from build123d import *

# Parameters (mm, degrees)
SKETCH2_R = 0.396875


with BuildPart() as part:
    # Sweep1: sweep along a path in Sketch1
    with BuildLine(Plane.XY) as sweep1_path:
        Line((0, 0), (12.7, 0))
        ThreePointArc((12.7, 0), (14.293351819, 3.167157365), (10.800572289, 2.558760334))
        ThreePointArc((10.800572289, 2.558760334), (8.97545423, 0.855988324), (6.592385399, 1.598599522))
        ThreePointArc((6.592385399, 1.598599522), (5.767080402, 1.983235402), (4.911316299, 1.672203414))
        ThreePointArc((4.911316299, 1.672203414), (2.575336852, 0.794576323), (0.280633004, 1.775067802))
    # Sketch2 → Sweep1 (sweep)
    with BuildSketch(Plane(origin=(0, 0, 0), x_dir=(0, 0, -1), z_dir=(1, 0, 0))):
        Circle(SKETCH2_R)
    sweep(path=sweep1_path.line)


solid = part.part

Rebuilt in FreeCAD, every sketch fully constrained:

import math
import FreeCAD as App
import Part
import Sketcher

V = App.Vector
Q = App.Units.Quantity

doc = App.newDocument("Part")
body = doc.addObject("PartDesign::Body", "Body")

# Sketch on YZ plane
sketch1 = body.newObject("Sketcher::SketchObject", "Sketch")
sketch1.AttachmentSupport = (doc.getObject("YZ_Plane"), [""])
sketch1.MapMode = "FlatFace"
sketch1.addGeometry(Part.Circle(V(0, 0, 0), V(0, 0, 1), 0.4), False)
sketch1.addConstraint(Sketcher.Constraint("Coincident", 0, 3, -1, 1))
sketch1.addConstraint(Sketcher.Constraint("Diameter", 0, Q("0.03125 in")))

# Sketch on XY plane
sketch2 = body.newObject("Sketcher::SketchObject", "Sketch001")
sketch2.AttachmentSupport = (doc.getObject("XY_Plane"), [""])
sketch2.MapMode = "FlatFace"
sketch2.addGeometry(Part.LineSegment(V(0, 0, 0), V(12.7, 0, 0)), False)
sketch2.addGeometry(Part.ArcOfCircle(Part.Circle(V(12.7, 2, 0), V(0, 0, 1), 2), math.radians(-90), math.radians(163)), False)
sketch2.addGeometry(Part.ArcOfCircle(Part.Circle(V(8.4, 3.3, 0), V(0, 0, 1), 2.5), math.radians(-137), math.radians(-17)), False)
sketch2.addGeometry(Part.ArcOfCircle(Part.Circle(V(5.7, 0.8, 0), V(0, 0, 1), 1.2), math.radians(43), math.radians(132)), False)
sketch2.addGeometry(Part.ArcOfCircle(Part.Circle(V(2.6, 4.1, 0), V(0, 0, 1), 3.4), math.radians(-135), math.radians(-48)), False)
sketch2.addConstraint(Sketcher.Constraint("Tangent", 0, 2, 1, 1))
sketch2.addConstraint(Sketcher.Constraint("Tangent", 1, 2, 2, 2))
sketch2.addConstraint(Sketcher.Constraint("Tangent", 2, 1, 3, 1))
sketch2.addConstraint(Sketcher.Constraint("Tangent", 3, 2, 4, 2))
sketch2.addConstraint(Sketcher.Constraint("Horizontal", 0))
sketch2.addConstraint(Sketcher.Constraint("Coincident", 0, 1, -1, 1))
sketch2.addConstraint(Sketcher.Constraint("DistanceX", 0, 1, 0, 2, Q("0.5 in")))
sketch2.addConstraint(Sketcher.Constraint("Radius", 1, Q("0.078125 in")))
sketch2.addConstraint(Sketcher.Constraint("Radius", 3, Q("0.046875 in")))
sketch2.addConstraint(Sketcher.Constraint("DistanceX", -1, 1, 3, 3, Q("0.225 in")))
sketch2.addConstraint(Sketcher.Constraint("DistanceY", -1, 1, 3, 3, Q("0.03125 in")))
sketch2.addConstraint(Sketcher.Constraint("Radius", 2, Q("2.48402 mm")))
sketch2.addConstraint(Sketcher.Constraint("Radius", 4, Q("3.350429 mm")))
sketch2.addConstraint(Sketcher.Constraint("DistanceY", -1, 1, 4, 3, Q("4.144179 mm")))
sketch2.addConstraint(Sketcher.Constraint("DistanceX", 4, 1, 4, 3, Q("2.369111 mm")))
doc.recompute()

additivepipe = body.newObject("PartDesign::AdditivePipe", "AdditivePipe")
additivepipe.Profile = sketch1
additivepipe.Spine = (sketch2, ["Edge1", "Edge2", "Edge3", "Edge4", "Edge5"])

doc.recompute()
